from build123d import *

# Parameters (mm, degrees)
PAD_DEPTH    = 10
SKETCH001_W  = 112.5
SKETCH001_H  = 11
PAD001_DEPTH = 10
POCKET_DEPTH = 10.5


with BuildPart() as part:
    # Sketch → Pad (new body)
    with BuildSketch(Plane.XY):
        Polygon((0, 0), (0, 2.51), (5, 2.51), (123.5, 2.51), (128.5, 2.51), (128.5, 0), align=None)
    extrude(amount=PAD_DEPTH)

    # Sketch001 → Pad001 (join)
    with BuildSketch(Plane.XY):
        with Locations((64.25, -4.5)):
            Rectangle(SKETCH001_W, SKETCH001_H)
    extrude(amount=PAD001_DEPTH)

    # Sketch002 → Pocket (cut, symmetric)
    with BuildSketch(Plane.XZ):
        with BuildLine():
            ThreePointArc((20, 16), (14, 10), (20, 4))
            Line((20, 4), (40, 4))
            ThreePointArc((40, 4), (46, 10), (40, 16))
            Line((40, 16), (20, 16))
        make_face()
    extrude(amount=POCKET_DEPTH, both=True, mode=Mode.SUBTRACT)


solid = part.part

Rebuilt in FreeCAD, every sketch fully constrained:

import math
import FreeCAD as App
import Part
import Sketcher


def add_polygon(sketch, points):
    """Adds a closed chain of lines whose ends are joined by coincident constraints."""
    first, n = sketch.GeometryCount, len(points)
    for a, b in zip(points, points[1:] + points[:1]):
        sketch.addGeometry(Part.LineSegment(App.Vector(*a, 0), App.Vector(*b, 0)), False)
    for i in range(n):
        sketch.addConstraint(Sketcher.Constraint("Coincident", first + i, 2, first + (i + 1) % n, 1))

doc = App.newDocument("Part")
body = doc.addObject("PartDesign::Body", "Body")

# Sketch on XY plane
sketch1 = body.newObject("Sketcher::SketchObject", "Sketch")
sketch1.AttachmentSupport = (doc.getObject("XY_Plane"), [""])
sketch1.MapMode = "FlatFace"
add_polygon(sketch1, [(0, 2.5), (0, 0), (128.5, 0), (128.5, 2.5)])  # lines 0-3
sketch1.addConstraint([
    Sketcher.Constraint("Vertical", 0),
    Sketcher.Constraint("Horizontal", 1),
    Sketcher.Constraint("Vertical", 2),
    Sketcher.Constraint("Horizontal", 3),
    Sketcher.Constraint("Coincident", 0, 2, -1, 1),
    Sketcher.Constraint("DistanceX", 1, 1, 1, 2, 128.5),
    Sketcher.Constraint("DistanceY", 0, 2, 0, 1, 2.51),
])
pad1 = body.newObject("PartDesign::Pad", "Pad")
pad1.Profile = sketch1
pad1.Length = 10

# Sketch on XY plane
sketch2 = body.newObject("Sketcher::SketchObject", "Sketch001")
sketch2.AttachmentSupport = (doc.getObject("XY_Plane"), [""])
sketch2.MapMode = "FlatFace"
add_polygon(sketch2, [(8, 1), (8, -10), (120, -10), (120, 1)])  # lines 0-3
sketch2.addConstraint([
    Sketcher.Constraint("Vertical", 0),
    Sketcher.Constraint("Horizontal", 1),
    Sketcher.Constraint("Vertical", 2),
    Sketcher.Constraint("Horizontal", 3),
    Sketcher.Constraint("DistanceY", 0, 2, 0, 1, 11.0),
    Sketcher.Constraint("DistanceX", 1, 1, 1, 2, 112.5),
    Sketcher.Constraint("DistanceX", -1, 1, 0, 2, 8.0),
    Sketcher.Constraint("DistanceY", 0, 2, -1, 1, 10.0),
])
pad2 = body.newObject("PartDesign::Pad", "Pad001")
pad2.Profile = sketch2
pad2.Length = 10

# Sketch on XZ plane
sketch3 = body.newObject("Sketcher::SketchObject", "Sketch002")
sketch3.AttachmentSupport = (doc.getObject("XZ_Plane"), [""])
sketch3.MapMode = "FlatFace"
sketch3.addGeometry([
    Part.ArcOfCircle(Part.Circle(App.Vector(20, 10, 0), App.Vector(0, 0, 1), 6), math.radians(90), math.radians(270)),
    Part.LineSegment(App.Vector(20, 4, 0), App.Vector(40, 4, 0)),
    Part.ArcOfCircle(Part.Circle(App.Vector(40, 10, 0), App.Vector(0, 0, 1), 6), math.radians(-90), math.radians(90)),
    Part.LineSegment(App.Vector(40, 16, 0), App.Vector(20, 16, 0)),
], False)
sketch3.addConstraint([
    Sketcher.Constraint("Tangent", 0, 2, 1, 1),
    Sketcher.Constraint("Tangent", 1, 2, 2, 1),
    Sketcher.Constraint("Tangent", 2, 2, 3, 1),
    Sketcher.Constraint("Tangent", 3, 2, 0, 1),
    Sketcher.Constraint("Horizontal", 1),
    Sketcher.Constraint("Horizontal", 3),
    Sketcher.Constraint("Radius", 0, 6.0),
    Sketcher.Constraint("DistanceX", 1, 1, 1, 2, 20.0),
    Sketcher.Constraint("DistanceX", -1, 1, 0, 3, 20.0),
    Sketcher.Constraint("DistanceY", -1, 1, 0, 3, 10.0),
])
pocket1 = body.newObject("PartDesign::Pocket", "Pocket")
pocket1.Profile = sketch3
pocket1.Length = 21
pocket1.Midplane = True

doc.recompute()
